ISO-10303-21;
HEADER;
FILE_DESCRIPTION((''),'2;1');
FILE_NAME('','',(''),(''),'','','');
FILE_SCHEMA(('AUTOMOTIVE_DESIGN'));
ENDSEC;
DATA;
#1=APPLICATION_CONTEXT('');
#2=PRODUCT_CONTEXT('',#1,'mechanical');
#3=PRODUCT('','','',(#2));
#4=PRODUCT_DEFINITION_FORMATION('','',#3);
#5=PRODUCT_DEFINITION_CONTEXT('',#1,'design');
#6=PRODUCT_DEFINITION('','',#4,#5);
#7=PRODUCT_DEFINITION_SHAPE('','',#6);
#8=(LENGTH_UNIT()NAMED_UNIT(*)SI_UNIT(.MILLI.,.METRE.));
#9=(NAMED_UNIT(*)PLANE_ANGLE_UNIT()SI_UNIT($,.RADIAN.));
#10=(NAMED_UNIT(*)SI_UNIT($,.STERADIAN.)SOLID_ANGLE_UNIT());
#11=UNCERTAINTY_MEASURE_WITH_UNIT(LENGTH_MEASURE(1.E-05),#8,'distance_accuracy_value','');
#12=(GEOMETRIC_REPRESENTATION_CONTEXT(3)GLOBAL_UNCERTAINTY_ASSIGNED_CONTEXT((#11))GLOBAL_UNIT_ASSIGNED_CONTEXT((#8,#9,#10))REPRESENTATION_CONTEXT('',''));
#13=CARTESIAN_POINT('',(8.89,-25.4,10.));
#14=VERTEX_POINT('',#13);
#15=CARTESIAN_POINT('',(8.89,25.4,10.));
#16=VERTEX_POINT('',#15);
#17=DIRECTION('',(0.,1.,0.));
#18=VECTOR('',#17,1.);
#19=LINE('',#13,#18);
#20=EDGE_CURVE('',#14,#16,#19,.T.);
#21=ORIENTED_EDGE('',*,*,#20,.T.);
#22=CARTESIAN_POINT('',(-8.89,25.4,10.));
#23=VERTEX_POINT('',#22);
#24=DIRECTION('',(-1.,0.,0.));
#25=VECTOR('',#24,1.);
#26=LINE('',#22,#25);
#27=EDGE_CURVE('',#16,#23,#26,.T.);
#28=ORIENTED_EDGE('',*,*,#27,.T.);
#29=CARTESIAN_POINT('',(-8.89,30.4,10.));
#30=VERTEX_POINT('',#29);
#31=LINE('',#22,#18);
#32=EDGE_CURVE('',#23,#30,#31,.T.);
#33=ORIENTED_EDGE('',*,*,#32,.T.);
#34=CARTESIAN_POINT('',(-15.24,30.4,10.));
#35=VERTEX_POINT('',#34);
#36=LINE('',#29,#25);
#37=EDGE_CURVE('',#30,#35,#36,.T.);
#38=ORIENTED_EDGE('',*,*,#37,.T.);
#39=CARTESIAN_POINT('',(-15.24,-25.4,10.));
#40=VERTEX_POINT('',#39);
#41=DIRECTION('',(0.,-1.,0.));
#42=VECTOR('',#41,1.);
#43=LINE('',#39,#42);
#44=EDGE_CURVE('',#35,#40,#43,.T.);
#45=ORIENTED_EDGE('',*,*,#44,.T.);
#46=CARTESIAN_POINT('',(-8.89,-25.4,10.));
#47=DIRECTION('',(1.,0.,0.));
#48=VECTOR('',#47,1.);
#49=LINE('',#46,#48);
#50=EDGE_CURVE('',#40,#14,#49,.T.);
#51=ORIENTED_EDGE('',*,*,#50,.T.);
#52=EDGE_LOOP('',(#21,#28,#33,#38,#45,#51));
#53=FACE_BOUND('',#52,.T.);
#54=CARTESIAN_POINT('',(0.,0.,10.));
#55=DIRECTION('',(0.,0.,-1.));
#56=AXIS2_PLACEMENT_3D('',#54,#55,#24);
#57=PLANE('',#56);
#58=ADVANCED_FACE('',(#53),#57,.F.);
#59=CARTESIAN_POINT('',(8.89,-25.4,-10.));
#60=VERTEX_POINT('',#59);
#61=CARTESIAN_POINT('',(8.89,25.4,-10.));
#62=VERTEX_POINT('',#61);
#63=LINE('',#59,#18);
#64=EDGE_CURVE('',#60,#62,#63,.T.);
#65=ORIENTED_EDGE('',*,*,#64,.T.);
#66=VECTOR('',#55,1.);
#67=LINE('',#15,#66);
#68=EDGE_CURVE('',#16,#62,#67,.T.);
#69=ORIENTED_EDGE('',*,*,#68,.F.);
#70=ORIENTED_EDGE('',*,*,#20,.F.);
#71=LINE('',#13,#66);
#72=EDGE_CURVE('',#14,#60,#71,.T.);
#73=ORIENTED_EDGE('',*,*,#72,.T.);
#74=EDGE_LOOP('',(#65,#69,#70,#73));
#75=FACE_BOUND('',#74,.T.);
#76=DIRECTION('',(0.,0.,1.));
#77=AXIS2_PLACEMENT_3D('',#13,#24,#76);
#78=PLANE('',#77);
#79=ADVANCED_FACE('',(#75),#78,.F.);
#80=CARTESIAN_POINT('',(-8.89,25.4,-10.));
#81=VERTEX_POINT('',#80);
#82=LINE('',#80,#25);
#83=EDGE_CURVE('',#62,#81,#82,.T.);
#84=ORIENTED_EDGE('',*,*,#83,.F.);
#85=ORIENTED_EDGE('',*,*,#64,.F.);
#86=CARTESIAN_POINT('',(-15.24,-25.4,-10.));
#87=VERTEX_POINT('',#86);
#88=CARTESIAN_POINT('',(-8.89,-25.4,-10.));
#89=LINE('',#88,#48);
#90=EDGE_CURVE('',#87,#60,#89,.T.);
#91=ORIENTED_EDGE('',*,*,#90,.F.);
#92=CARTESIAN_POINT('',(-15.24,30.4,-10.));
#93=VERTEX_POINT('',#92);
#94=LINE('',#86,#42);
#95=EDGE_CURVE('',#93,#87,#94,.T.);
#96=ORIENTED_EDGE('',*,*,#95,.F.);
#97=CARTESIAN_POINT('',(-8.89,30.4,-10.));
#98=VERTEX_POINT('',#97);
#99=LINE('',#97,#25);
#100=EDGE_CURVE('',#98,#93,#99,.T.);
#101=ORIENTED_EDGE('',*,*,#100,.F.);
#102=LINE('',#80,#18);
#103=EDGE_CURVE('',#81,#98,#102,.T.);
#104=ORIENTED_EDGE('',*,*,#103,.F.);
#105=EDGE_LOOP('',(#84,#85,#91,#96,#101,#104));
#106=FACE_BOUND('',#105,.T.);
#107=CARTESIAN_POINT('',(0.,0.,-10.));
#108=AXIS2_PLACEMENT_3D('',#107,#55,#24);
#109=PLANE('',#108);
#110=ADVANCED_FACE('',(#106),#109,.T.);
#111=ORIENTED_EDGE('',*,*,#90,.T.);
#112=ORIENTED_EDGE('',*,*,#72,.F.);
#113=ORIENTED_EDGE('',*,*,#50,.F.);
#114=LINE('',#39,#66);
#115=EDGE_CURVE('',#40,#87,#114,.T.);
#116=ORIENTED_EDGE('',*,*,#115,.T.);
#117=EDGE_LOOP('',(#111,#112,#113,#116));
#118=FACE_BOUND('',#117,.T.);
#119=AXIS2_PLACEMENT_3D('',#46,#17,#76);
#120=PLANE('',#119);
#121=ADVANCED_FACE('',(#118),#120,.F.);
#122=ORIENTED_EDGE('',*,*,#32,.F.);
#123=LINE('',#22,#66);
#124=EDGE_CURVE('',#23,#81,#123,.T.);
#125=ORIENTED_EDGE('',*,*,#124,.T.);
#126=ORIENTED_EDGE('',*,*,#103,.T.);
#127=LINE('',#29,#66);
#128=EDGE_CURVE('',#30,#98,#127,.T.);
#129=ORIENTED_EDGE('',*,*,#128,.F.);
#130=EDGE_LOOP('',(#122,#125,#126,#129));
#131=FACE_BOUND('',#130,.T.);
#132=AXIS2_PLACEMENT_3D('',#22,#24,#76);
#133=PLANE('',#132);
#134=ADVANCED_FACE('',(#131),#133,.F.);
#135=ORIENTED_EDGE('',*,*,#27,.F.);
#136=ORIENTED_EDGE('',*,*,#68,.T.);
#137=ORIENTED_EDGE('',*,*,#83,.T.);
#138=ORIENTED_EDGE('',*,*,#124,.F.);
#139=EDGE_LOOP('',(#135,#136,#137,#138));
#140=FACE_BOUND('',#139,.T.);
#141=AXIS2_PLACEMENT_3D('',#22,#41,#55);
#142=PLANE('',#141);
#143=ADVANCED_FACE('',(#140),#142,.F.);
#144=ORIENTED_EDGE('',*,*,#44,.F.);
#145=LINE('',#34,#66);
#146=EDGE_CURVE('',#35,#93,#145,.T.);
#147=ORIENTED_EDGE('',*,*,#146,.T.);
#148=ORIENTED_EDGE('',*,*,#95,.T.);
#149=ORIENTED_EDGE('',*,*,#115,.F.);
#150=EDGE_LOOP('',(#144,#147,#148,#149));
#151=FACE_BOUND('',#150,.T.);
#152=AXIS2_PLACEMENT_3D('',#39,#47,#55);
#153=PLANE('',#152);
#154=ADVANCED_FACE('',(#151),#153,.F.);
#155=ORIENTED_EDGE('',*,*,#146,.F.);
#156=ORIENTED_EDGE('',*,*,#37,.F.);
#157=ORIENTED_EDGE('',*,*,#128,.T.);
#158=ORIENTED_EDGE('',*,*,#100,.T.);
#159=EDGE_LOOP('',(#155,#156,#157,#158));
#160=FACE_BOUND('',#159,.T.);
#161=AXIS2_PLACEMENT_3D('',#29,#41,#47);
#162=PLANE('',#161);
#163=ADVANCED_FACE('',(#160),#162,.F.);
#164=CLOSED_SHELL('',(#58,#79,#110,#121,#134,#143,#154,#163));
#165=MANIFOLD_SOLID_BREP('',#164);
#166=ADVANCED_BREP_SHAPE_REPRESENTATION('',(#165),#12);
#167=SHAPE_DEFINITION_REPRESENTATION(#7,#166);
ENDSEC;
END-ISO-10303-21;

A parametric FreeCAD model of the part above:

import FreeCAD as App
import Part
import Sketcher
from FreeCAD import Vector
Q = App.Units.Quantity

doc = App.newDocument("Part")
body = doc.addObject("PartDesign::Body", "Body")

sketch1 = doc.addObject("Sketcher::SketchObject", "Sketch")
body.addObject(sketch1)
sketch1.AttachmentSupport = (doc.XY_Plane, [""])
sketch1.MapMode = "FlatFace"
sketch1.addGeometry(Part.LineSegment(Vector(9, -25, 0), Vector(9, 25, 0)), False)
sketch1.addGeometry(Part.LineSegment(Vector(9, 25, 0), Vector(-9, 25, 0)), False)
sketch1.addGeometry(Part.LineSegment(Vector(-9, 25, 0), Vector(-9, 30, 0)), False)
sketch1.addGeometry(Part.LineSegment(Vector(-9, 30, 0), Vector(-15, 30, 0)), False)
sketch1.addGeometry(Part.LineSegment(Vector(-15, 30, 0), Vector(-15, -25, 0)), False)
sketch1.addGeometry(Part.LineSegment(Vector(-15, -25, 0), Vector(9, -25, 0)), False)
sketch1.addConstraint(Sketcher.Constraint("Coincident", 0, 2, 1, 1))
sketch1.addConstraint(Sketcher.Constraint("Coincident", 1, 2, 2, 1))
sketch1.addConstraint(Sketcher.Constraint("Coincident", 2, 2, 3, 1))
sketch1.addConstraint(Sketcher.Constraint("Coincident", 3, 2, 4, 1))
sketch1.addConstraint(Sketcher.Constraint("Coincident", 4, 2, 5, 1))
sketch1.addConstraint(Sketcher.Constraint("Coincident", 5, 2, 0, 1))
sketch1.addConstraint(Sketcher.Constraint("Vertical", 0))
sketch1.addConstraint(Sketcher.Constraint("Horizontal", 1))
sketch1.addConstraint(Sketcher.Constraint("Vertical", 2))
sketch1.addConstraint(Sketcher.Constraint("Horizontal", 3))
sketch1.addConstraint(Sketcher.Constraint("Vertical", 4))
sketch1.addConstraint(Sketcher.Constraint("Horizontal", 5))
sketch1.addConstraint(Sketcher.Constraint("Symmetric", 1, 2, 5, 2, -1, 1))
sketch1.addConstraint(Sketcher.Constraint("DistanceY", 0, 1, 0, 2, Q("2 in")))
sketch1.addConstraint(Sketcher.Constraint("DistanceX", 1, 2, 1, 1, Q("0.7 in")))
sketch1.addConstraint(Sketcher.Constraint("DistanceX", 3, 2, 3, 1, Q("0.25 in")))
sketch1.addConstraint(Sketcher.Constraint("DistanceY", 2, 1, 2, 2, Q("5 mm")))
pad1 = doc.addObject("PartDesign::Pad", "Pad")
body.addObject(pad1)
pad1.Profile = sketch1
pad1.Length = 20
pad1.Midplane = True

doc.recompute()
